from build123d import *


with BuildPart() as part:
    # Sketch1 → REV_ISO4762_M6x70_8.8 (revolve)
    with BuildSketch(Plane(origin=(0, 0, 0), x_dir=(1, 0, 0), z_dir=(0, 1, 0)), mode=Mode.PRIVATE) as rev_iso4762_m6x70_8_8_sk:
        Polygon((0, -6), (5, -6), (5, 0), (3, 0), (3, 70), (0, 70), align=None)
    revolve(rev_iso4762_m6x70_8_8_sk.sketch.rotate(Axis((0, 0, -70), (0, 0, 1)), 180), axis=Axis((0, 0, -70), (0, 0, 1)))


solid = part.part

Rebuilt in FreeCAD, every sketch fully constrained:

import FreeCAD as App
import Part
import Sketcher
from FreeCAD import Vector
Q = App.Units.Quantity


def add_polygon(sketch, points):
    """Adds a closed chain of lines whose ends are joined by coincident constraints."""
    first, n = sketch.GeometryCount, len(points)
    for a, b in zip(points, points[1:] + points[:1]):
        sketch.addGeometry(Part.LineSegment(App.Vector(*a, 0), App.Vector(*b, 0)), False)
    for i in range(n):
        sketch.addConstraint(Sketcher.Constraint("Coincident", first + i, 2, first + (i + 1) % n, 1))

doc = App.newDocument("Part")
body = doc.addObject("PartDesign::Body", "Body")

sketch1 = body.newObject("Sketcher::SketchObject", "Sketch")
sketch1.AttachmentSupport = (doc.getObject("XZ_Plane"), [""])
sketch1.MapMode = "FlatFace"
add_polygon(sketch1, [(0, 6), (5, 6), (5, 0), (3, 0), (3, -70), (0, -70)])
sketch1.addConstraint([
    Sketcher.Constraint("Horizontal", 0),
    Sketcher.Constraint("Vertical", 1),
    Sketcher.Constraint("Horizontal", 2),
    Sketcher.Constraint("Vertical", 3),
    Sketcher.Constraint("Horizontal", 4),
    Sketcher.Constraint("Vertical", 5),
    Sketcher.Constraint("PointOnObject", 1, 2, -1),
    Sketcher.Constraint("PointOnObject", 4, 2, -2),
    Sketcher.Constraint("DistanceX", 0, 1, 0, 2, Q("5 mm")),
    Sketcher.Constraint("DistanceX", 2, 2, 2, 1, Q("2 mm")),
    Sketcher.Constraint("DistanceY", 1, 2, 1, 1, Q("6 mm")),
    Sketcher.Constraint("DistanceY", 3, 2, 3, 1, Q("70 mm")),
])
revolution = body.newObject("PartDesign::Revolution", "Revolution")
revolution.Profile = sketch1
revolution.ReferenceAxis = (sketch1, ["V_Axis"])
revolution.Angle = 360

doc.recompute()
